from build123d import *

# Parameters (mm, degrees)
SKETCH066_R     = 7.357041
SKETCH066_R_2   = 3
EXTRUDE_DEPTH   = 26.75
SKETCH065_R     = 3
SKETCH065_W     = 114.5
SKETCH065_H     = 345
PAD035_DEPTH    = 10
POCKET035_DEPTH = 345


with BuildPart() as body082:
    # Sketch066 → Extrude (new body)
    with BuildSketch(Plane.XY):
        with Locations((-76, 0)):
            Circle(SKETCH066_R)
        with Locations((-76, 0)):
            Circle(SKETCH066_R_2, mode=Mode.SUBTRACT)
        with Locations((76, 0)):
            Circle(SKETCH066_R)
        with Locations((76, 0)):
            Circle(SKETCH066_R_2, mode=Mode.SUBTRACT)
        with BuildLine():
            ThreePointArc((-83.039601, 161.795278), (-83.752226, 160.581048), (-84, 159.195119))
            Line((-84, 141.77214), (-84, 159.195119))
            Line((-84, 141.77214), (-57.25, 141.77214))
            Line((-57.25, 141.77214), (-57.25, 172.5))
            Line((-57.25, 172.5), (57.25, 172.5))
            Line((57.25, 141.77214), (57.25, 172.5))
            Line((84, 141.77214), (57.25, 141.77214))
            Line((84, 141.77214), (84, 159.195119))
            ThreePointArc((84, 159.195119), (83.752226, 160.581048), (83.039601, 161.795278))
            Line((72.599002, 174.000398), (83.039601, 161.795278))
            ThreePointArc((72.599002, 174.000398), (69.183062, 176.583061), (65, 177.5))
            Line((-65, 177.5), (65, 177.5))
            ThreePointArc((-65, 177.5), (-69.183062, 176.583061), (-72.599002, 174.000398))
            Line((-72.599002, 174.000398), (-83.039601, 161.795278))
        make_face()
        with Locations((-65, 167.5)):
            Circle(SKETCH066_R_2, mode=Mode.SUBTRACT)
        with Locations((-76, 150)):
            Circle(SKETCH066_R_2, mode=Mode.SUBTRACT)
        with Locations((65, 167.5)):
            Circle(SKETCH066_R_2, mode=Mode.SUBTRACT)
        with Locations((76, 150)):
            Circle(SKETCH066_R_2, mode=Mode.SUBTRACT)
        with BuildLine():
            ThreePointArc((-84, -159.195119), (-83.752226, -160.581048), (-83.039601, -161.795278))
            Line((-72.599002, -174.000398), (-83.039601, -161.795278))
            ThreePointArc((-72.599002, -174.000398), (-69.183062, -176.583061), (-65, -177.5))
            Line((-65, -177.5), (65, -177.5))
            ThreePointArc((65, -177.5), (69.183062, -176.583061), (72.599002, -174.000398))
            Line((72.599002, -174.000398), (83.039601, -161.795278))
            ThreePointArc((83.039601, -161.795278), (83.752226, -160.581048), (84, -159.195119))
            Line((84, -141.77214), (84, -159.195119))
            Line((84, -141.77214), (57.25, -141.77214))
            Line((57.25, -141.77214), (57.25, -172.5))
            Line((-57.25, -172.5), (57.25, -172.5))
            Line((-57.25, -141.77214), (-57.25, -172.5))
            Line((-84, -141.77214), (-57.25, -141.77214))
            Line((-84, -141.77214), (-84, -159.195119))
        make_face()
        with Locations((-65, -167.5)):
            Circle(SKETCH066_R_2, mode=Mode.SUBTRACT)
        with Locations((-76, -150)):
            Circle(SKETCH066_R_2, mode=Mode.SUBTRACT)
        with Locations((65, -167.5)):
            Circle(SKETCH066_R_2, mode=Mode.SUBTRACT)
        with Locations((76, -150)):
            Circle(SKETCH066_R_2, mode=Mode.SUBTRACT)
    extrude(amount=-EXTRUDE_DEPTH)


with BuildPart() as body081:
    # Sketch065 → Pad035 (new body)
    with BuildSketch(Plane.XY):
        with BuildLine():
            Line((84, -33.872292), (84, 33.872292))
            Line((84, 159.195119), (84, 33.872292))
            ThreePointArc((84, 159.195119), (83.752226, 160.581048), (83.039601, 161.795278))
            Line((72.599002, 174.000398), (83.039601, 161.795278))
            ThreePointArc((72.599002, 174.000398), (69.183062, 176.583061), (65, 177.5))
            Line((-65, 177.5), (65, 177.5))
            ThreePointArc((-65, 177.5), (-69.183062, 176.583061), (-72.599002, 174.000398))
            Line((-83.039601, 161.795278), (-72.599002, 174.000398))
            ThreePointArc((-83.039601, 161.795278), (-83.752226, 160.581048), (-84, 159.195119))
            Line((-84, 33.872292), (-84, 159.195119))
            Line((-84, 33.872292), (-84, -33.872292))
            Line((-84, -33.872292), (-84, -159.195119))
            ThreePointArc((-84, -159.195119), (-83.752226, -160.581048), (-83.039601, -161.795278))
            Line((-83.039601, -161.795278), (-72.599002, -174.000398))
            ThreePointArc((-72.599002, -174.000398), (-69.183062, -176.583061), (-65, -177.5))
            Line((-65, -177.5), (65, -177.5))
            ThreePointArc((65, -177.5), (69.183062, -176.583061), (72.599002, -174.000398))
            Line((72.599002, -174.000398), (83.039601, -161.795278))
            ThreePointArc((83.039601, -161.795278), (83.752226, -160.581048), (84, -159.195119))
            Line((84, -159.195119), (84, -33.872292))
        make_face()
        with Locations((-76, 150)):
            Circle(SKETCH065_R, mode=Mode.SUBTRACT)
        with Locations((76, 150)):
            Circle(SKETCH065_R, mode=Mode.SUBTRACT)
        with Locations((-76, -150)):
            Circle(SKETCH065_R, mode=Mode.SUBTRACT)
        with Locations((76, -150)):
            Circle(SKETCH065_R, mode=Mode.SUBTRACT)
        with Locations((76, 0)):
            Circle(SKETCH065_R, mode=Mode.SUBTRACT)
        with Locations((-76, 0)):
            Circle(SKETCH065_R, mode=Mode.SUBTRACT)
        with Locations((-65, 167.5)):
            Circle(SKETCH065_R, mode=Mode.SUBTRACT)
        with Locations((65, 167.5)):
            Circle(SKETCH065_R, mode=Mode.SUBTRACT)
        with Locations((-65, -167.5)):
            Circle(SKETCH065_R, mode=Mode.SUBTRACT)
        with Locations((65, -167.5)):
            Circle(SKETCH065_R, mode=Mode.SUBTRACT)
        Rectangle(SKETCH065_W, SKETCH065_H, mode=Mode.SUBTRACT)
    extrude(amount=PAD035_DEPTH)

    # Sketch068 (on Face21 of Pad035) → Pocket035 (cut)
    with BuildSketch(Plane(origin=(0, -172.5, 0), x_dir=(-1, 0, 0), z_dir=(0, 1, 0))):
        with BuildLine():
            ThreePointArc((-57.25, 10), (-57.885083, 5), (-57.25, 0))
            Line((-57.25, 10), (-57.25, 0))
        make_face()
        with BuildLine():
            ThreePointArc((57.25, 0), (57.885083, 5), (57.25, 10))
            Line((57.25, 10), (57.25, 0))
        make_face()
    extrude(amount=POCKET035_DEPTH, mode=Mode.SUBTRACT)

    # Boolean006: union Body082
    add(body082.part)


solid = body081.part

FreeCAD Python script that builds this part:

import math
import FreeCAD as App
import Part
import Sketcher
from FreeCAD import Vector
Q = App.Units.Quantity


def add_polygon(sketch, points):
    """Adds a closed chain of lines whose ends are joined by coincident constraints."""
    first, n = sketch.GeometryCount, len(points)
    for a, b in zip(points, points[1:] + points[:1]):
        sketch.addGeometry(Part.LineSegment(App.Vector(*a, 0), App.Vector(*b, 0)), False)
    for i in range(n):
        sketch.addConstraint(Sketcher.Constraint("Coincident", first + i, 2, first + (i + 1) % n, 1))

doc = App.newDocument("Part")
body = doc.addObject("PartDesign::Body", "Body")
body.AllowCompound = True

# Sketch on XY plane
sketch1 = body.newObject("Sketcher::SketchObject", "Sketch")
sketch1.AttachmentSupport = (doc.getObject("XY_Plane"), [""])
sketch1.MapMode = "FlatFace"
sketch1.addGeometry([
    Part.Circle(Vector(-76, 0, 0), Vector(0, 0, 1), 7.4),  # 0
    Part.Circle(Vector(-76, 0, 0), Vector(0, 0, 1), 3),  # 1
    Part.Circle(Vector(76, 0, 0), Vector(0, 0, 1), 7.4),  # 2
    Part.Circle(Vector(76, 0, 0), Vector(0, 0, 1), 3),  # 3
    Part.ArcOfCircle(Part.Circle(Vector(-80, 159.2, 0), Vector(0, 0, 1), 4), math.radians(139), math.radians(180)),  # 4
    Part.LineSegment(Vector(-84, 159.2, 0), Vector(-84, 141.8, 0)),  # 5
    Part.LineSegment(Vector(-84, 141.8, 0), Vector(-57.2, 141.8, 0)),  # 6
    Part.LineSegment(Vector(-57.2, 141.8, 0), Vector(-57.2, 172.5, 0)),  # 7
    Part.LineSegment(Vector(-57.2, 172.5, 0), Vector(57.2, 172.5, 0)),  # 8
    Part.LineSegment(Vector(57.2, 172.5, 0), Vector(57.2, 141.8, 0)),  # 9
    Part.LineSegment(Vector(57.2, 141.8, 0), Vector(84, 141.8, 0)),  # 10
    Part.LineSegment(Vector(84, 141.8, 0), Vector(84, 159.2, 0)),  # 11
    Part.ArcOfCircle(Part.Circle(Vector(80, 159.2, 0), Vector(0, 0, 1), 4), math.radians(0), math.radians(41)),  # 12
    Part.LineSegment(Vector(83, 161.8, 0), Vector(72.6, 174, 0)),  # 13
    Part.ArcOfCircle(Part.Circle(Vector(65, 167.5, 0), Vector(0, 0, 1), 10), math.radians(41), math.radians(90)),  # 14
    Part.LineSegment(Vector(65, 177.5, 0), Vector(-65, 177.5, 0)),  # 15
    Part.ArcOfCircle(Part.Circle(Vector(-65, 167.5, 0), Vector(0, 0, 1), 10), math.radians(90), math.radians(139)),  # 16
    Part.LineSegment(Vector(-72.6, 174, 0), Vector(-83, 161.8, 0)),  # 17
    Part.Circle(Vector(-76, 150, 0), Vector(0, 0, 1), 3),  # 18
    Part.Circle(Vector(76, 150, 0), Vector(0, 0, 1), 3),  # 19
    Part.Circle(Vector(-65, 167.5, 0), Vector(0, 0, 1), 3),  # 20
    Part.Circle(Vector(65, 167.5, 0), Vector(0, 0, 1), 3),  # 21
    Part.ArcOfCircle(Part.Circle(Vector(-80, -159.2, 0), Vector(0, 0, 1), 4), math.radians(-180), math.radians(-139)),  # 22
    Part.LineSegment(Vector(-83, -161.8, 0), Vector(-72.6, -174, 0)),  # 23
    Part.ArcOfCircle(Part.Circle(Vector(-65, -167.5, 0), Vector(0, 0, 1), 10), math.radians(-139), math.radians(-90)),  # 24
    Part.LineSegment(Vector(-65, -177.5, 0), Vector(65, -177.5, 0)),  # 25
    Part.ArcOfCircle(Part.Circle(Vector(65, -167.5, 0), Vector(0, 0, 1), 10), math.radians(-90), math.radians(-41)),  # 26
    Part.LineSegment(Vector(72.6, -174, 0), Vector(83, -161.8, 0)),  # 27
    Part.ArcOfCircle(Part.Circle(Vector(80, -159.2, 0), Vector(0, 0, 1), 4), math.radians(-41), math.radians(0)),  # 28
    Part.LineSegment(Vector(84, -159.2, 0), Vector(84, -141.8, 0)),  # 29
    Part.LineSegment(Vector(84, -141.8, 0), Vector(57.2, -141.8, 0)),  # 30
    Part.LineSegment(Vector(57.2, -141.8, 0), Vector(57.2, -172.5, 0)),  # 31
    Part.LineSegment(Vector(57.2, -172.5, 0), Vector(-57.2, -172.5, 0)),  # 32
    Part.LineSegment(Vector(-57.2, -172.5, 0), Vector(-57.2, -141.8, 0)),  # 33
    Part.LineSegment(Vector(-57.2, -141.8, 0), Vector(-84, -141.8, 0)),  # 34
    Part.LineSegment(Vector(-84, -141.8, 0), Vector(-84, -159.2, 0)),  # 35
    Part.Circle(Vector(-65, -167.5, 0), Vector(0, 0, 1), 3),  # 36
    Part.Circle(Vector(65, -167.5, 0), Vector(0, 0, 1), 3),  # 37
    Part.Circle(Vector(-76, -150, 0), Vector(0, 0, 1), 3),  # 38
    Part.Circle(Vector(76, -150, 0), Vector(0, 0, 1), 3),  # 39
], False)
sketch1.addConstraint([
    Sketcher.Constraint("Tangent", 4, 2, 5, 1),
    Sketcher.Constraint("Coincident", 5, 2, 6, 1),
    Sketcher.Constraint("Coincident", 6, 2, 7, 1),
    Sketcher.Constraint("Coincident", 7, 2, 8, 1),
    Sketcher.Constraint("Coincident", 8, 2, 9, 1),
    Sketcher.Constraint("Coincident", 9, 2, 10, 1),
    Sketcher.Constraint("Coincident", 10, 2, 11, 1),
    Sketcher.Constraint("Tangent", 11, 2, 12, 1),
    Sketcher.Constraint("Tangent", 12, 2, 13, 1),
    Sketcher.Constraint("Tangent", 13, 2, 14, 1),
    Sketcher.Constraint("Tangent", 14, 2, 15, 1),
    Sketcher.Constraint("Tangent", 15, 2, 16, 1),
    Sketcher.Constraint("Tangent", 16, 2, 17, 1),
    Sketcher.Constraint("Tangent", 17, 2, 4, 1),
    Sketcher.Constraint("Tangent", 22, 2, 23, 1),
    Sketcher.Constraint("Tangent", 23, 2, 24, 1),
    Sketcher.Constraint("Tangent", 24, 2, 25, 1),
    Sketcher.Constraint("Tangent", 25, 2, 26, 1),
    Sketcher.Constraint("Tangent", 26, 2, 27, 1),
    Sketcher.Constraint("Tangent", 27, 2, 28, 1),
    Sketcher.Constraint("Tangent", 28, 2, 29, 1),
    Sketcher.Constraint("Coincident", 29, 2, 30, 1),
    Sketcher.Constraint("Coincident", 30, 2, 31, 1),
    Sketcher.Constraint("Coincident", 31, 2, 32, 1),
    Sketcher.Constraint("Coincident", 32, 2, 33, 1),
    Sketcher.Constraint("Coincident", 33, 2, 34, 1),
    Sketcher.Constraint("Coincident", 34, 2, 35, 1),
    Sketcher.Constraint("Tangent", 35, 2, 22, 1),
    Sketcher.Constraint("Vertical", 5),
    Sketcher.Constraint("Horizontal", 6),
    Sketcher.Constraint("Vertical", 7),
    Sketcher.Constraint("Horizontal", 8),
    Sketcher.Constraint("Vertical", 9),
    Sketcher.Constraint("Horizontal", 10),
    Sketcher.Constraint("Vertical", 11),
    Sketcher.Constraint("Horizontal", 15),
    Sketcher.Constraint("Horizontal", 25),
    Sketcher.Constraint("Vertical", 29),
    Sketcher.Constraint("Horizontal", 30),
    Sketcher.Constraint("Vertical", 31),
    Sketcher.Constraint("Horizontal", 32),
    Sketcher.Constraint("Vertical", 33),
    Sketcher.Constraint("Horizontal", 34),
    Sketcher.Constraint("Vertical", 35),
    Sketcher.Constraint("Coincident", 1, 3, 0, 3),
    Sketcher.Constraint("Coincident", 3, 3, 2, 3),
    Sketcher.Constraint("Coincident", 20, 3, 16, 3),
    Sketcher.Constraint("Coincident", 21, 3, 14, 3),
    Sketcher.Constraint("Coincident", 36, 3, 24, 3),
    Sketcher.Constraint("Coincident", 37, 3, 26, 3),
    Sketcher.Constraint("Equal", 0, 2),
    Sketcher.Constraint("Equal", 1, 3),
    Sketcher.Constraint("Equal", 4, 12),
    Sketcher.Constraint("Equal", 14, 16),
    Sketcher.Constraint("Equal", 3, 18),
    Sketcher.Constraint("Equal", 18, 19),
    Sketcher.Constraint("Equal", 19, 20),
    Sketcher.Constraint("Equal", 20, 21),
    Sketcher.Constraint("Equal", 12, 22),
    Sketcher.Constraint("Equal", 16, 24),
    Sketcher.Constraint("Equal", 24, 26),
    Sketcher.Constraint("Equal", 22, 28),
    Sketcher.Constraint("Equal", 21, 36),
    Sketcher.Constraint("Equal", 36, 37),
    Sketcher.Constraint("Equal", 37, 38),
    Sketcher.Constraint("Equal", 38, 39),
    Sketcher.Constraint("Symmetric", 0, 3, 2, 3, -1, 1),
    Sketcher.Constraint("Symmetric", 12, 3, 22, 3, -1, 1),
    Sketcher.Constraint("Symmetric", 14, 3, 24, 3, -1, 1),
    Sketcher.Constraint("Symmetric", 4, 3, 28, 3, -1, 1),
    Sketcher.Constraint("Symmetric", 19, 3, 38, 3, -1, 1),
    Sketcher.Constraint("Symmetric", 18, 3, 39, 3, -1, 1),
    Sketcher.Constraint("Symmetric", 6, 2, 30, 2, -1, 1),
    Sketcher.Constraint("Symmetric", 8, 2, 32, 2, -1, 1),
    Sketcher.Constraint("Symmetric", 4, 3, 12, 3, -2),
    Sketcher.Constraint("Symmetric", 18, 3, 19, 3, -2),
    Sketcher.Constraint("Symmetric", 6, 2, 9, 2, -2),
    Sketcher.Constraint("PointOnObject", 0, 3, -1),
    Sketcher.Constraint("Parallel", 17, 27),
    Sketcher.Constraint("Horizontal", 13, 2, 16, 2),
    Sketcher.Constraint("Horizontal", 30, 2, 33, 2),
    Sketcher.Constraint("Vertical", 1, 3, 18, 3),
    Sketcher.Constraint("Diameter", 1, Q("6 mm")),
    Sketcher.Constraint("Radius", 14, Q("9.999999 mm")),
    Sketcher.Constraint("DistanceX", 15, 2, 15, 1, Q("130 mm")),
    Sketcher.Constraint("DistanceX", 8, 1, 8, 2, Q("114.5 mm")),
    Sketcher.Constraint("DistanceX", 0, 3, -1, 1, Q("76 mm")),
    Sketcher.Constraint("DistanceY", -1, 1, 18, 3, Q("150 mm")),
    Sketcher.Constraint("DistanceX", 4, 2, -1, 1, Q("84 mm")),
    Sketcher.Constraint("DistanceX", 4, 3, 14, 3, Q("144.999998 mm")),
    Sketcher.Constraint("DistanceY", 20, 3, 7, 2, Q("5 mm")),
    Sketcher.Constraint("DistanceY", -1, 1, 14, 3, Q("167.500001 mm")),
    Sketcher.Constraint("Diameter", 0, Q("14.714082 mm")),
    Sketcher.Constraint("DistanceX", -1, 1, 13, 2, Q("72.599002 mm")),
    Sketcher.Constraint("DistanceY", 5, 2, 5, 1, Q("17.422979 mm")),
])
pad1 = body.newObject("PartDesign::Pad", "Pad")
pad1.Profile = sketch1
pad1.Length = 26.75
pad1.Reversed = True
body2 = doc.addObject("PartDesign::Body", "Body001")

# Sketch on XY plane
sketch2 = body2.newObject("Sketcher::SketchObject", "Sketch001")
sketch2.AttachmentSupport = (doc.getObject("XY_Plane001"), [""])
sketch2.MapMode = "FlatFace"
sketch2.addGeometry(Part.LineSegment(Vector(84, -159.2, 0), Vector(84, 159.2, 0)), False)  # 0
sketch2.addGeometry(Part.ArcOfCircle(Part.Circle(Vector(80, 159.2, 0), Vector(0, 0, 1), 4), math.radians(0), math.radians(41)), False)  # 1
sketch2.addGeometry(Part.LineSegment(Vector(83, 161.8, 0), Vector(72.6, 174, 0)), False)  # 2
sketch2.addGeometry(Part.ArcOfCircle(Part.Circle(Vector(65, 167.5, 0), Vector(0, 0, 1), 10), math.radians(41), math.radians(90)), False)  # 3
sketch2.addGeometry(Part.LineSegment(Vector(65, 177.5, 0), Vector(-65, 177.5, 0)), False)  # 4
sketch2.addGeometry(Part.ArcOfCircle(Part.Circle(Vector(-65, 167.5, 0), Vector(0, 0, 1), 10), math.radians(90), math.radians(139)), False)  # 5
sketch2.addGeometry(Part.LineSegment(Vector(-72.6, 174, 0), Vector(-83, 161.8, 0)), False)  # 6
sketch2.addGeometry(Part.ArcOfCircle(Part.Circle(Vector(-80, 159.2, 0), Vector(0, 0, 1), 4), math.radians(139), math.radians(180)), False)  # 7
sketch2.addGeometry(Part.LineSegment(Vector(-84, 159.2, 0), Vector(-84, -159.2, 0)), False)  # 8
sketch2.addGeometry(Part.ArcOfCircle(Part.Circle(Vector(-80, -159.2, 0), Vector(0, 0, 1), 4), math.radians(-180), math.radians(-139)), False)  # 9
sketch2.addGeometry(Part.LineSegment(Vector(-83, -161.8, 0), Vector(-72.6, -174, 0)), False)  # 10
sketch2.addGeometry(Part.ArcOfCircle(Part.Circle(Vector(-65, -167.5, 0), Vector(0, 0, 1), 10), math.radians(-139), math.radians(-90)), False)  # 11
sketch2.addGeometry(Part.LineSegment(Vector(-65, -177.5, 0), Vector(65, -177.5, 0)), False)  # 12
sketch2.addGeometry(Part.ArcOfCircle(Part.Circle(Vector(65, -167.5, 0), Vector(0, 0, 1), 10), math.radians(-90), math.radians(-41)), False)  # 13
sketch2.addGeometry(Part.LineSegment(Vector(72.6, -174, 0), Vector(83, -161.8, 0)), False)  # 14
sketch2.addGeometry(Part.ArcOfCircle(Part.Circle(Vector(80, -159.2, 0), Vector(0, 0, 1), 4), math.radians(-41), math.radians(0)), False)  # 15
sketch2.addGeometry(Part.Circle(Vector(65, -167.5, 0), Vector(0, 0, 1), 3), False)  # 16
sketch2.addGeometry(Part.Circle(Vector(76, -150, 0), Vector(0, 0, 1), 3), False)  # 17
sketch2.addGeometry(Part.Circle(Vector(-65, -167.5, 0), Vector(0, 0, 1), 3), False)  # 18
sketch2.addGeometry(Part.Circle(Vector(-76, -150, 0), Vector(0, 0, 1), 3), False)  # 19
sketch2.addGeometry(Part.Circle(Vector(76, 0, 0), Vector(0, 0, 1), 3), False)  # 20
sketch2.addGeometry(Part.Circle(Vector(76, 150, 0), Vector(0, 0, 1), 3), False)  # 21
sketch2.addGeometry(Part.Circle(Vector(65, 167.5, 0), Vector(0, 0, 1), 3), False)  # 22
add_polygon(sketch2, [(-57.2, -172.5), (-57.2, 172.5), (57.2, 172.5), (57.2, -172.5)])  # lines 23-26
sketch2.addGeometry(Part.Circle(Vector(-76, 0, 0), Vector(0, 0, 1), 3), False)  # 27
sketch2.addGeometry(Part.Circle(Vector(-76, 150, 0), Vector(0, 0, 1), 3), False)  # 28
sketch2.addGeometry(Part.Circle(Vector(-65, 167.5, 0), Vector(0, 0, 1), 3), False)  # 29
sketch2.addConstraint([
    Sketcher.Constraint("Tangent", 0, 2, 1, 1),
    Sketcher.Constraint("Tangent", 1, 2, 2, 1),
    Sketcher.Constraint("Tangent", 2, 2, 3, 1),
    Sketcher.Constraint("Tangent", 3, 2, 4, 1),
    Sketcher.Constraint("Tangent", 4, 2, 5, 1),
    Sketcher.Constraint("Tangent", 5, 2, 6, 1),
    Sketcher.Constraint("Tangent", 6, 2, 7, 1),
    Sketcher.Constraint("Tangent", 7, 2, 8, 1),
    Sketcher.Constraint("Tangent", 8, 2, 9, 1),
    Sketcher.Constraint("Tangent", 9, 2, 10, 1),
    Sketcher.Constraint("Tangent", 10, 2, 11, 1),
    Sketcher.Constraint("Tangent", 11, 2, 12, 1),
    Sketcher.Constraint("Tangent", 12, 2, 13, 1),
    Sketcher.Constraint("Tangent", 13, 2, 14, 1),
    Sketcher.Constraint("Tangent", 14, 2, 15, 1),
    Sketcher.Constraint("Tangent", 15, 2, 0, 1),
    Sketcher.Constraint("Vertical", 0),
    Sketcher.Constraint("Horizontal", 4),
    Sketcher.Constraint("Vertical", 8),
    Sketcher.Constraint("Horizontal", 12),
    Sketcher.Constraint("Vertical", 23),
    Sketcher.Constraint("Horizontal", 24),
    Sketcher.Constraint("Vertical", 25),
    Sketcher.Constraint("Horizontal", 26),
    Sketcher.Constraint("Coincident", 16, 3, 13, 3),
    Sketcher.Constraint("Coincident", 18, 3, 11, 3),
    Sketcher.Constraint("Coincident", 22, 3, 3, 3),
    Sketcher.Constraint("Coincident", 29, 3, 5, 3),
    Sketcher.Constraint("Equal", 3, 5),
    Sketcher.Constraint("Equal", 1, 7),
    Sketcher.Constraint("Equal", 7, 9),
    Sketcher.Constraint("Equal", 5, 11),
    Sketcher.Constraint("Equal", 11, 13),
    Sketcher.Constraint("Equal", 9, 15),
    Sketcher.Constraint("Equal", 16, 17),
    Sketcher.Constraint("Equal", 17, 18),
    Sketcher.Constraint("Equal", 18, 19),
    Sketcher.Constraint("Equal", 19, 20),
    Sketcher.Constraint("Equal", 20, 21),
    Sketcher.Constraint("Equal", 21, 22),
    Sketcher.Constraint("Equal", 22, 27),
    Sketcher.Constraint("Equal", 27, 28),
    Sketcher.Constraint("Equal", 28, 29),
    Sketcher.Constraint("Symmetric", 1, 3, 9, 3, -1, 1),
    Sketcher.Constraint("Symmetric", 3, 3, 11, 3, -1, 1),
    Sketcher.Constraint("Symmetric", 19, 3, 21, 3, -1, 1),
    Sketcher.Constraint("Symmetric", 20, 3, 27, 3, -1, 1),
    Sketcher.Constraint("Symmetric", 17, 3, 28, 3, -1, 1),
    Sketcher.Constraint("Symmetric", 5, 2, 13, 2, -1, 1),
    Sketcher.Constraint("Symmetric", 23, 2, 25, 2, -1, 1),
    Sketcher.Constraint("Symmetric", 17, 3, 19, 3, -2),
    Sketcher.Constraint("Symmetric", 2, 2, 5, 2, -2),
    Sketcher.Constraint("PointOnObject", 20, 3, -1),
    Sketcher.Constraint("Vertical", 17, 3, 20, 3),
    Sketcher.Constraint("Diameter", 16, Q("6 mm")),
    Sketcher.Constraint("Radius", 3, Q("9.999999 mm")),
    Sketcher.Constraint("DistanceX", 4, 2, 4, 1, Q("130 mm")),
    Sketcher.Constraint("DistanceY", 23, 1, 23, 2, Q("345 mm")),
    Sketcher.Constraint("DistanceX", 24, 1, 24, 2, Q("114.5 mm")),
    Sketcher.Constraint("DistanceX", -1, 1, 17, 3, Q("76 mm")),
    Sketcher.Constraint("DistanceY", 17, 3, -1, 1, Q("150 mm")),
    Sketcher.Constraint("DistanceX", -1, 1, 0, 2, Q("84 mm")),
    Sketcher.Constraint("DistanceX", 5, 3, 1, 3, Q("144.999998 mm")),
    Sketcher.Constraint("DistanceY", 11, 3, 5, 3, Q("335.000002 mm")),
    Sketcher.Constraint("DistanceX", -1, 1, 2, 2, Q("72.599002 mm")),
])
pad2 = body2.newObject("PartDesign::Pad", "Pad001")
pad2.Profile = sketch2
pad2.Length = 10

# Sketch on XZ plane
sketch3 = body2.newObject("Sketcher::SketchObject", "Sketch002")
sketch3.AttachmentSupport = (doc.getObject("XZ_Plane001"), [""])
sketch3.MapMode = "FlatFace"
sketch3.AttachmentOffset = App.Placement(Vector(0, 0, 172.5), App.Rotation())
sketch3.addGeometry([
    Part.ArcOfCircle(Part.Circle(Vector(38, 5, 0), Vector(0, 0, 1), 20), math.radians(-14), math.radians(14)),
    Part.LineSegment(Vector(57, 0, 0), Vector(57, 10, 0)),
    Part.ArcOfCircle(Part.Circle(Vector(-38, 5, 0), Vector(0, 0, 1), 20), math.radians(166), math.radians(194)),
    Part.LineSegment(Vector(-57, 10, 0), Vector(-57, 0, 0)),
], False)
sketch3.addConstraint([
    Sketcher.Constraint("Coincident", 0, 1, 1, 1),
    Sketcher.Constraint("Coincident", 1, 2, 0, 2),
    Sketcher.Constraint("Coincident", 2, 1, 3, 1),
    Sketcher.Constraint("Coincident", 3, 2, 2, 2),
    Sketcher.Constraint("Vertical", 1),
    Sketcher.Constraint("Vertical", 3),
    Sketcher.Constraint("Equal", 0, 2),
    Sketcher.Constraint("Symmetric", 0, 1, 3, 2, -1, 1),
    Sketcher.Constraint("Symmetric", 0, 3, 2, 3, -2),
    Sketcher.Constraint("DistanceY", 1, 1, 1, 2, Q("10 mm")),
    Sketcher.Constraint("DistanceX", 2, 1, 1, 2, Q("114.5 mm")),
    Sketcher.Constraint("Radius", 0, Q("20.000008 mm")),
])
pocket1 = body2.newObject("PartDesign::Pocket", "Pocket")
pocket1.Profile = sketch3
pocket1.Length = 345
doc.recompute()

boolean = body2.newObject("PartDesign::Boolean", "Boolean")
boolean.Type = "Fuse"
boolean.addObjects([body])

doc.recompute()
